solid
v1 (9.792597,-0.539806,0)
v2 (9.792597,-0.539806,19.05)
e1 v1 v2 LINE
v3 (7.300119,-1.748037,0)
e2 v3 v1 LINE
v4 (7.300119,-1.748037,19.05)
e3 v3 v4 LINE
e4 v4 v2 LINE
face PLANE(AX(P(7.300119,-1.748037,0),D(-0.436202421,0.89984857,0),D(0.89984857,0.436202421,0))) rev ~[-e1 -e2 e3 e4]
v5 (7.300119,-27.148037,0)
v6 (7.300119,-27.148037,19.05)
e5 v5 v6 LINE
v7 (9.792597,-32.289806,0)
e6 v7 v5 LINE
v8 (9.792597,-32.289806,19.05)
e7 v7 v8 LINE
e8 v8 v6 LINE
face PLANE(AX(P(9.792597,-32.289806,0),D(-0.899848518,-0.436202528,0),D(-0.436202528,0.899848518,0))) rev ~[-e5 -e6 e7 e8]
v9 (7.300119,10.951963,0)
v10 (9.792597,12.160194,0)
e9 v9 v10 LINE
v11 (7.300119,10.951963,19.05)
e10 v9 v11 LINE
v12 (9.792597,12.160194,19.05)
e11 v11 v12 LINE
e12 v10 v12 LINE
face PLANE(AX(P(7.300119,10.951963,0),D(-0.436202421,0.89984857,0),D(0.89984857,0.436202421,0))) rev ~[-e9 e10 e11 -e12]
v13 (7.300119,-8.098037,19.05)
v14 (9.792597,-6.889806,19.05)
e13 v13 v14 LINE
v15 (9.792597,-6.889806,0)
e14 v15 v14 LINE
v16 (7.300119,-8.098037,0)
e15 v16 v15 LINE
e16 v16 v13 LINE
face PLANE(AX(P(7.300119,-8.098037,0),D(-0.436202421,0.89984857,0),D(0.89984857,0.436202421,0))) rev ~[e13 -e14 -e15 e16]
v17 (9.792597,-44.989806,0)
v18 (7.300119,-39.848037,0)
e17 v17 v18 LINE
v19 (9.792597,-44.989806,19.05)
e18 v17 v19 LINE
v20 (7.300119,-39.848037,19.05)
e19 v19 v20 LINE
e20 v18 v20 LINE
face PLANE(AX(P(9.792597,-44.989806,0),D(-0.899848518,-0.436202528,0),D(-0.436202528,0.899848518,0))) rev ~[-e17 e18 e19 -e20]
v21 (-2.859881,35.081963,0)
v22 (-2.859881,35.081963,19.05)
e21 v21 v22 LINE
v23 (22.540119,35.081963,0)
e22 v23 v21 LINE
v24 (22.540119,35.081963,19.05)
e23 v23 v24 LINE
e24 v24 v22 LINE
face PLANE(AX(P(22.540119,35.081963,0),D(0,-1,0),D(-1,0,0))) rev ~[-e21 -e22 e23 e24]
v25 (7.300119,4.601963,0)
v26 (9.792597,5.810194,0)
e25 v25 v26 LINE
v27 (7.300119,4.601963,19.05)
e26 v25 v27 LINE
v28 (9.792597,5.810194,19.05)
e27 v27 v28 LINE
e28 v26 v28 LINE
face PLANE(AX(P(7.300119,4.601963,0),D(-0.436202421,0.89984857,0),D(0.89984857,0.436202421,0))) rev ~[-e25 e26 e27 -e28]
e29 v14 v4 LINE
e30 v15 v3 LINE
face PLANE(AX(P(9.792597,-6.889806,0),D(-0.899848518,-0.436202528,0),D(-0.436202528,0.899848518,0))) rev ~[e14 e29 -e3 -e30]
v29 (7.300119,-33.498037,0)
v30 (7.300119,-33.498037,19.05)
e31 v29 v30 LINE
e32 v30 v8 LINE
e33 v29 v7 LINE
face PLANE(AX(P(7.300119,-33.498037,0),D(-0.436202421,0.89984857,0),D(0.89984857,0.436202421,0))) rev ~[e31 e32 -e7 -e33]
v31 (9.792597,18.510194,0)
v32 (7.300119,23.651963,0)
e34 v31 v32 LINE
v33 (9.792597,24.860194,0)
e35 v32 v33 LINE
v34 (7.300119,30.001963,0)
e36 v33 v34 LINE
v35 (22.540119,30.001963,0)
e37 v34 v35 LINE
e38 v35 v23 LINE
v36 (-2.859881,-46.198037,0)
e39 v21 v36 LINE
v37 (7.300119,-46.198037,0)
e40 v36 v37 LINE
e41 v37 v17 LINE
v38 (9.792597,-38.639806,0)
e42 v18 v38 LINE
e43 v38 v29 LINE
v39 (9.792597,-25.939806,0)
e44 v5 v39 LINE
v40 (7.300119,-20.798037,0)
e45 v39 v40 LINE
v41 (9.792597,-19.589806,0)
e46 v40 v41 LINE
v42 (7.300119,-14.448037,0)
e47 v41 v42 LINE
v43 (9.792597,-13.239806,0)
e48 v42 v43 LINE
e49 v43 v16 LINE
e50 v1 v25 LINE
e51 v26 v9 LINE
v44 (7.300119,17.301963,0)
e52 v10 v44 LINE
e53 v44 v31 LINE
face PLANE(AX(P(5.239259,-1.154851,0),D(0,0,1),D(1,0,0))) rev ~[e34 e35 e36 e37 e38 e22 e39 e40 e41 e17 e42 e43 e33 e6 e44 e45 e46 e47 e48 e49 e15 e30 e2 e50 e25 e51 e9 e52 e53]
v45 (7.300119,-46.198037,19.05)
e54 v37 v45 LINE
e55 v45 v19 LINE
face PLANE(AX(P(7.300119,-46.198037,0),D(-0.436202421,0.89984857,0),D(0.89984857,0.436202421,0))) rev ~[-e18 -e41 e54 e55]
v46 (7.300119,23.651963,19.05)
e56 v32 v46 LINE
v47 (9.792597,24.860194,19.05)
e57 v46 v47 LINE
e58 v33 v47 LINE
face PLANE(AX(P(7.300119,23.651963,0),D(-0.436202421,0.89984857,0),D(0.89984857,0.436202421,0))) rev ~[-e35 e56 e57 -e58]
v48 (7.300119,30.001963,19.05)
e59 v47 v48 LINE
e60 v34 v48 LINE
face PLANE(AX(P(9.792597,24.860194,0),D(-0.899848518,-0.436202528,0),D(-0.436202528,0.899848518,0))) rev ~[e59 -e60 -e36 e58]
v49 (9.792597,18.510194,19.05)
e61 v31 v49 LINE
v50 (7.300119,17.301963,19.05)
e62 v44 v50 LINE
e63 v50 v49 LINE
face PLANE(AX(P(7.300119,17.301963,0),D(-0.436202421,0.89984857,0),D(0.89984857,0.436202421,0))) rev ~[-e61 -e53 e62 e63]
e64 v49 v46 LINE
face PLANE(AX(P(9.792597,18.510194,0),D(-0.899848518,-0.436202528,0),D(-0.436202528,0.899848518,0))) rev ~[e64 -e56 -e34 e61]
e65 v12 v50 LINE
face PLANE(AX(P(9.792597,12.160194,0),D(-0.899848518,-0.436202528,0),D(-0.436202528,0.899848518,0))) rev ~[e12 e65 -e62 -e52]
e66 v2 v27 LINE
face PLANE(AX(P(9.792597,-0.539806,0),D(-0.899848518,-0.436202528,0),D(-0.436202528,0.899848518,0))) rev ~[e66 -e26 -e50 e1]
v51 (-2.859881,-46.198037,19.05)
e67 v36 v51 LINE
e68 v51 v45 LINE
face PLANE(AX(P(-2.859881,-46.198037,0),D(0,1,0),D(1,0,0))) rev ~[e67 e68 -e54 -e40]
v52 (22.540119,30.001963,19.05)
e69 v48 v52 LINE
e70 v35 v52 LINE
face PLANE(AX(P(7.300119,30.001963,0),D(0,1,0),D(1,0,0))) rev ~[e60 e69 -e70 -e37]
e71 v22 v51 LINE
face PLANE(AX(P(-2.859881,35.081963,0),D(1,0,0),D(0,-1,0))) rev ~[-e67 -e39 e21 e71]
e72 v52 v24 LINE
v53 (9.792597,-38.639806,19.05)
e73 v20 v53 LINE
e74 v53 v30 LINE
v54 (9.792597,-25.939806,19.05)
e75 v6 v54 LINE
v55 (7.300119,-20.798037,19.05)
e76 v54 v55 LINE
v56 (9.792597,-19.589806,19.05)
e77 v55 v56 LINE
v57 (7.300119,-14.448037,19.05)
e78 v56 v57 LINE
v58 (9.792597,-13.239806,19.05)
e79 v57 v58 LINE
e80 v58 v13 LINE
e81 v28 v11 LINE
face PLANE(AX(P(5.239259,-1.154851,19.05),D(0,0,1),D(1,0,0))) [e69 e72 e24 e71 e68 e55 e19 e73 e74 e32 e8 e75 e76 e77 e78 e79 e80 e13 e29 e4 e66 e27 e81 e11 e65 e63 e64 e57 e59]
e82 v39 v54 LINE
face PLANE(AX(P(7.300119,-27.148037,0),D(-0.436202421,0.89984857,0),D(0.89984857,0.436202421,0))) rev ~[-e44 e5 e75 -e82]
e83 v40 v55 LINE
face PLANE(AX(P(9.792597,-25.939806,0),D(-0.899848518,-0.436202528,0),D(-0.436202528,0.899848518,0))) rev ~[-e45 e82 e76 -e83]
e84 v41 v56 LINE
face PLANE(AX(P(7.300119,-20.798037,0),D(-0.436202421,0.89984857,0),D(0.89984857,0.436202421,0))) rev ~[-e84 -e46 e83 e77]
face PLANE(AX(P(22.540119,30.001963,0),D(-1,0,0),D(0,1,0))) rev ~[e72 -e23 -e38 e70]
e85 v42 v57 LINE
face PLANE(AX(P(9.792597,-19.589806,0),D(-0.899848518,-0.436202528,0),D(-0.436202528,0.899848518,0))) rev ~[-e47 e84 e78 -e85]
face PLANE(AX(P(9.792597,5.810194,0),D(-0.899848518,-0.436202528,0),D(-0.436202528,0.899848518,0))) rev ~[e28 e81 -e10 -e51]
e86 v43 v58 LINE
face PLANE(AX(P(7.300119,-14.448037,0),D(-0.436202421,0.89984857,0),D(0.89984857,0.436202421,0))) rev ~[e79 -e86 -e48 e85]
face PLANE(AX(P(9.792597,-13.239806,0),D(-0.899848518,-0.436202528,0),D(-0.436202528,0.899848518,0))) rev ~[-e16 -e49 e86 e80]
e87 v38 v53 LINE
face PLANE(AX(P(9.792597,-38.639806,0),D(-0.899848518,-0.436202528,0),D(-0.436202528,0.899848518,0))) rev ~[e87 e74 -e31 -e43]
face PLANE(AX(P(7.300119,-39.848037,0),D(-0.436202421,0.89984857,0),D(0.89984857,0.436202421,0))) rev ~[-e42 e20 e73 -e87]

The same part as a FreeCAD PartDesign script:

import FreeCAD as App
import Part
import Sketcher
from FreeCAD import Vector
Q = App.Units.Quantity

doc = App.newDocument("Part")
body = doc.addObject("PartDesign::Body", "Body")

# Sketch on XY plane
sketch1 = body.newObject("Sketcher::SketchObject", "Sketch")
sketch1.AttachmentSupport = (doc.getObject("XY_Plane"), [""])
sketch1.MapMode = "FlatFace"
sketch1.addGeometry(Part.LineSegment(Vector(-2.9, -46.2, 0), Vector(7.3, -46.2, 0)), False)
sketch1.addGeometry(Part.LineSegment(Vector(7.3, -46.2, 0), Vector(9.8, -45, 0)), False)
sketch1.addGeometry(Part.LineSegment(Vector(9.8, -45, 0), Vector(7.3, -39.8, 0)), False)
sketch1.addGeometry(Part.LineSegment(Vector(7.3, -39.8, 0), Vector(9.8, -38.6, 0)), False)
sketch1.addGeometry(Part.LineSegment(Vector(9.8, -38.6, 0), Vector(7.3, -33.5, 0)), False)
sketch1.addGeometry(Part.LineSegment(Vector(7.3, -33.5, 0), Vector(9.8, -32.3, 0)), False)
sketch1.addGeometry(Part.LineSegment(Vector(9.8, -32.3, 0), Vector(7.3, -27.1, 0)), False)
sketch1.addGeometry(Part.LineSegment(Vector(7.3, -27.1, 0), Vector(9.8, -25.9, 0)), False)
sketch1.addGeometry(Part.LineSegment(Vector(9.8, -25.9, 0), Vector(7.3, -20.8, 0)), False)
sketch1.addGeometry(Part.LineSegment(Vector(7.3, -20.8, 0), Vector(9.8, -19.6, 0)), False)
sketch1.addGeometry(Part.LineSegment(Vector(9.8, -19.6, 0), Vector(7.3, -14.4, 0)), False)
sketch1.addGeometry(Part.LineSegment(Vector(7.3, -14.4, 0), Vector(9.8, -13.2, 0)), False)
sketch1.addGeometry(Part.LineSegment(Vector(9.8, -13.2, 0), Vector(7.3, -8.1, 0)), False)
sketch1.addGeometry(Part.LineSegment(Vector(7.3, -8.1, 0), Vector(9.8, -6.9, 0)), False)
sketch1.addGeometry(Part.LineSegment(Vector(9.8, -6.9, 0), Vector(7.3, -1.7, 0)), False)
sketch1.addGeometry(Part.LineSegment(Vector(7.3, -1.7, 0), Vector(9.8, -0.5, 0)), False)
sketch1.addGeometry(Part.LineSegment(Vector(9.8, -0.5, 0), Vector(7.3, 4.6, 0)), False)
sketch1.addGeometry(Part.LineSegment(Vector(7.3, 4.6, 0), Vector(9.8, 5.8, 0)), False)
sketch1.addGeometry(Part.LineSegment(Vector(9.8, 5.8, 0), Vector(7.3, 11, 0)), False)
sketch1.addGeometry(Part.LineSegment(Vector(7.3, 11, 0), Vector(9.8, 12.2, 0)), False)
sketch1.addGeometry(Part.LineSegment(Vector(9.8, 12.2, 0), Vector(7.3, 17.3, 0)), False)
sketch1.addGeometry(Part.LineSegment(Vector(7.3, 17.3, 0), Vector(9.8, 18.5, 0)), False)
sketch1.addGeometry(Part.LineSegment(Vector(9.8, 18.5, 0), Vector(7.3, 23.7, 0)), False)
sketch1.addGeometry(Part.LineSegment(Vector(7.3, 23.7, 0), Vector(9.8, 24.9, 0)), False)
sketch1.addGeometry(Part.LineSegment(Vector(9.8, 24.9, 0), Vector(7.3, 30, 0)), False)
sketch1.addGeometry(Part.LineSegment(Vector(7.3, 30, 0), Vector(22.5, 30, 0)), False)
sketch1.addGeometry(Part.LineSegment(Vector(22.5, 30, 0), Vector(22.5, 35.1, 0)), False)
sketch1.addGeometry(Part.LineSegment(Vector(22.5, 35.1, 0), Vector(-2.9, 35.1, 0)), False)
sketch1.addGeometry(Part.LineSegment(Vector(-2.9, 35.1, 0), Vector(-2.9, -46.2, 0)), False)
sketch1.addConstraint(Sketcher.Constraint("Coincident", 0, 2, 1, 1))
sketch1.addConstraint(Sketcher.Constraint("Coincident", 1, 2, 2, 1))
sketch1.addConstraint(Sketcher.Constraint("Coincident", 2, 2, 3, 1))
sketch1.addConstraint(Sketcher.Constraint("Coincident", 3, 2, 4, 1))
sketch1.addConstraint(Sketcher.Constraint("Coincident", 4, 2, 5, 1))
sketch1.addConstraint(Sketcher.Constraint("Coincident", 5, 2, 6, 1))
sketch1.addConstraint(Sketcher.Constraint("Coincident", 6, 2, 7, 1))
sketch1.addConstraint(Sketcher.Constraint("Coincident", 7, 2, 8, 1))
sketch1.addConstraint(Sketcher.Constraint("Coincident", 8, 2, 9, 1))
sketch1.addConstraint(Sketcher.Constraint("Coincident", 9, 2, 10, 1))
sketch1.addConstraint(Sketcher.Constraint("Coincident", 10, 2, 11, 1))
sketch1.addConstraint(Sketcher.Constraint("Coincident", 11, 2, 12, 1))
sketch1.addConstraint(Sketcher.Constraint("Coincident", 12, 2, 13, 1))
sketch1.addConstraint(Sketcher.Constraint("Coincident", 13, 2, 14, 1))
sketch1.addConstraint(Sketcher.Constraint("Coincident", 14, 2, 15, 1))
sketch1.addConstraint(Sketcher.Constraint("Coincident", 15, 2, 16, 1))
sketch1.addConstraint(Sketcher.Constraint("Coincident", 16, 2, 17, 1))
sketch1.addConstraint(Sketcher.Constraint("Coincident", 17, 2, 18, 1))
sketch1.addConstraint(Sketcher.Constraint("Coincident", 18, 2, 19, 1))
sketch1.addConstraint(Sketcher.Constraint("Coincident", 19, 2, 20, 1))
sketch1.addConstraint(Sketcher.Constraint("Coincident", 20, 2, 21, 1))
sketch1.addConstraint(Sketcher.Constraint("Coincident", 21, 2, 22, 1))
sketch1.addConstraint(Sketcher.Constraint("Coincident", 22, 2, 23, 1))
sketch1.addConstraint(Sketcher.Constraint("Coincident", 23, 2, 24, 1))
sketch1.addConstraint(Sketcher.Constraint("Coincident", 24, 2, 25, 1))
sketch1.addConstraint(Sketcher.Constraint("Coincident", 25, 2, 26, 1))
sketch1.addConstraint(Sketcher.Constraint("Coincident", 26, 2, 27, 1))
sketch1.addConstraint(Sketcher.Constraint("Coincident", 27, 2, 28, 1))
sketch1.addConstraint(Sketcher.Constraint("Coincident", 28, 2, 0, 1))
sketch1.addConstraint(Sketcher.Constraint("Horizontal", 0))
sketch1.addConstraint(Sketcher.Constraint("Horizontal", 25))
sketch1.addConstraint(Sketcher.Constraint("Vertical", 26))
sketch1.addConstraint(Sketcher.Constraint("Horizontal", 27))
sketch1.addConstraint(Sketcher.Constraint("Vertical", 28))
sketch1.addConstraint(Sketcher.Constraint("Perpendicular", 1, 2))
sketch1.addConstraint(Sketcher.Constraint("Perpendicular", 2, 3))
sketch1.addConstraint(Sketcher.Constraint("Perpendicular", 3, 4))
sketch1.addConstraint(Sketcher.Constraint("Perpendicular", 4, 5))
sketch1.addConstraint(Sketcher.Constraint("Perpendicular", 5, 6))
sketch1.addConstraint(Sketcher.Constraint("Perpendicular", 6, 7))
sketch1.addConstraint(Sketcher.Constraint("Perpendicular", 7, 8))
sketch1.addConstraint(Sketcher.Constraint("Perpendicular", 8, 9))
sketch1.addConstraint(Sketcher.Constraint("Perpendicular", 9, 10))
sketch1.addConstraint(Sketcher.Constraint("Perpendicular", 10, 11))
sketch1.addConstraint(Sketcher.Constraint("Perpendicular", 11, 12))
sketch1.addConstraint(Sketcher.Constraint("Perpendicular", 12, 13))
sketch1.addConstraint(Sketcher.Constraint("Perpendicular", 13, 14))
sketch1.addConstraint(Sketcher.Constraint("Perpendicular", 14, 15))
sketch1.addConstraint(Sketcher.Constraint("Perpendicular", 15, 16))
sketch1.addConstraint(Sketcher.Constraint("Perpendicular", 16, 17))
sketch1.addConstraint(Sketcher.Constraint("Perpendicular", 17, 18))
sketch1.addConstraint(Sketcher.Constraint("Perpendicular", 18, 19))
sketch1.addConstraint(Sketcher.Constraint("Perpendicular", 19, 20))
sketch1.addConstraint(Sketcher.Constraint("Perpendicular", 20, 21))
sketch1.addConstraint(Sketcher.Constraint("Perpendicular", 21, 22))
sketch1.addConstraint(Sketcher.Constraint("Perpendicular", 22, 23))
sketch1.addConstraint(Sketcher.Constraint("Perpendicular", 23, 24))
sketch1.addConstraint(Sketcher.Constraint("Vertical", 0, 2, 2, 2))
sketch1.addConstraint(Sketcher.Constraint("Vertical", 1, 2, 3, 2))
sketch1.addConstraint(Sketcher.Constraint("Vertical", 2, 2, 4, 2))
sketch1.addConstraint(Sketcher.Constraint("Vertical", 3, 2, 5, 2))
sketch1.addConstraint(Sketcher.Constraint("Vertical", 4, 2, 6, 2))
sketch1.addConstraint(Sketcher.Constraint("Vertical", 5, 2, 7, 2))
sketch1.addConstraint(Sketcher.Constraint("Vertical", 6, 2, 8, 2))
sketch1.addConstraint(Sketcher.Constraint("Vertical", 7, 2, 9, 2))
sketch1.addConstraint(Sketcher.Constraint("Vertical", 8, 2, 10, 2))
sketch1.addConstraint(Sketcher.Constraint("Vertical", 9, 2, 11, 2))
sketch1.addConstraint(Sketcher.Constraint("Vertical", 10, 2, 12, 2))
sketch1.addConstraint(Sketcher.Constraint("Vertical", 11, 2, 13, 2))
sketch1.addConstraint(Sketcher.Constraint("Vertical", 12, 2, 14, 2))
sketch1.addConstraint(Sketcher.Constraint("Vertical", 13, 2, 15, 2))
sketch1.addConstraint(Sketcher.Constraint("Vertical", 14, 2, 16, 2))
sketch1.addConstraint(Sketcher.Constraint("Vertical", 15, 2, 17, 2))
sketch1.addConstraint(Sketcher.Constraint("Vertical", 16, 2, 18, 2))
sketch1.addConstraint(Sketcher.Constraint("Vertical", 17, 2, 19, 2))
sketch1.addConstraint(Sketcher.Constraint("Vertical", 18, 2, 20, 2))
sketch1.addConstraint(Sketcher.Constraint("Vertical", 19, 2, 21, 2))
sketch1.addConstraint(Sketcher.Constraint("Vertical", 20, 2, 22, 2))
sketch1.addConstraint(Sketcher.Constraint("Vertical", 21, 2, 23, 2))
sketch1.addConstraint(Sketcher.Constraint("Vertical", 22, 2, 24, 2))
sketch1.addConstraint(Sketcher.Constraint("DistanceX", 27, 2, 27, 1, Q("1 in")))
sketch1.addConstraint(Sketcher.Constraint("DistanceX", 0, 1, 0, 2, Q("0.4 in")))
sketch1.addConstraint(Sketcher.Constraint("DistanceY", 26, 1, 26, 2, Q("0.2 in")))
sketch1.addConstraint(Sketcher.Constraint("DistanceY", 28, 2, 28, 1, Q("3.2 in")))
sketch1.addConstraint(Sketcher.Constraint("Distance", 2, 5.714038))
sketch1.addConstraint(Sketcher.Constraint("DistanceX", -1, 1, 0, 2, 7.300119))
sketch1.addConstraint(Sketcher.Constraint("DistanceY", 0, 2, -1, 1, 46.198037))
pad1 = body.newObject("PartDesign::Pad", "Pad")
pad1.Profile = sketch1
pad1.Length = Q("0.75 in")

doc.recompute()
